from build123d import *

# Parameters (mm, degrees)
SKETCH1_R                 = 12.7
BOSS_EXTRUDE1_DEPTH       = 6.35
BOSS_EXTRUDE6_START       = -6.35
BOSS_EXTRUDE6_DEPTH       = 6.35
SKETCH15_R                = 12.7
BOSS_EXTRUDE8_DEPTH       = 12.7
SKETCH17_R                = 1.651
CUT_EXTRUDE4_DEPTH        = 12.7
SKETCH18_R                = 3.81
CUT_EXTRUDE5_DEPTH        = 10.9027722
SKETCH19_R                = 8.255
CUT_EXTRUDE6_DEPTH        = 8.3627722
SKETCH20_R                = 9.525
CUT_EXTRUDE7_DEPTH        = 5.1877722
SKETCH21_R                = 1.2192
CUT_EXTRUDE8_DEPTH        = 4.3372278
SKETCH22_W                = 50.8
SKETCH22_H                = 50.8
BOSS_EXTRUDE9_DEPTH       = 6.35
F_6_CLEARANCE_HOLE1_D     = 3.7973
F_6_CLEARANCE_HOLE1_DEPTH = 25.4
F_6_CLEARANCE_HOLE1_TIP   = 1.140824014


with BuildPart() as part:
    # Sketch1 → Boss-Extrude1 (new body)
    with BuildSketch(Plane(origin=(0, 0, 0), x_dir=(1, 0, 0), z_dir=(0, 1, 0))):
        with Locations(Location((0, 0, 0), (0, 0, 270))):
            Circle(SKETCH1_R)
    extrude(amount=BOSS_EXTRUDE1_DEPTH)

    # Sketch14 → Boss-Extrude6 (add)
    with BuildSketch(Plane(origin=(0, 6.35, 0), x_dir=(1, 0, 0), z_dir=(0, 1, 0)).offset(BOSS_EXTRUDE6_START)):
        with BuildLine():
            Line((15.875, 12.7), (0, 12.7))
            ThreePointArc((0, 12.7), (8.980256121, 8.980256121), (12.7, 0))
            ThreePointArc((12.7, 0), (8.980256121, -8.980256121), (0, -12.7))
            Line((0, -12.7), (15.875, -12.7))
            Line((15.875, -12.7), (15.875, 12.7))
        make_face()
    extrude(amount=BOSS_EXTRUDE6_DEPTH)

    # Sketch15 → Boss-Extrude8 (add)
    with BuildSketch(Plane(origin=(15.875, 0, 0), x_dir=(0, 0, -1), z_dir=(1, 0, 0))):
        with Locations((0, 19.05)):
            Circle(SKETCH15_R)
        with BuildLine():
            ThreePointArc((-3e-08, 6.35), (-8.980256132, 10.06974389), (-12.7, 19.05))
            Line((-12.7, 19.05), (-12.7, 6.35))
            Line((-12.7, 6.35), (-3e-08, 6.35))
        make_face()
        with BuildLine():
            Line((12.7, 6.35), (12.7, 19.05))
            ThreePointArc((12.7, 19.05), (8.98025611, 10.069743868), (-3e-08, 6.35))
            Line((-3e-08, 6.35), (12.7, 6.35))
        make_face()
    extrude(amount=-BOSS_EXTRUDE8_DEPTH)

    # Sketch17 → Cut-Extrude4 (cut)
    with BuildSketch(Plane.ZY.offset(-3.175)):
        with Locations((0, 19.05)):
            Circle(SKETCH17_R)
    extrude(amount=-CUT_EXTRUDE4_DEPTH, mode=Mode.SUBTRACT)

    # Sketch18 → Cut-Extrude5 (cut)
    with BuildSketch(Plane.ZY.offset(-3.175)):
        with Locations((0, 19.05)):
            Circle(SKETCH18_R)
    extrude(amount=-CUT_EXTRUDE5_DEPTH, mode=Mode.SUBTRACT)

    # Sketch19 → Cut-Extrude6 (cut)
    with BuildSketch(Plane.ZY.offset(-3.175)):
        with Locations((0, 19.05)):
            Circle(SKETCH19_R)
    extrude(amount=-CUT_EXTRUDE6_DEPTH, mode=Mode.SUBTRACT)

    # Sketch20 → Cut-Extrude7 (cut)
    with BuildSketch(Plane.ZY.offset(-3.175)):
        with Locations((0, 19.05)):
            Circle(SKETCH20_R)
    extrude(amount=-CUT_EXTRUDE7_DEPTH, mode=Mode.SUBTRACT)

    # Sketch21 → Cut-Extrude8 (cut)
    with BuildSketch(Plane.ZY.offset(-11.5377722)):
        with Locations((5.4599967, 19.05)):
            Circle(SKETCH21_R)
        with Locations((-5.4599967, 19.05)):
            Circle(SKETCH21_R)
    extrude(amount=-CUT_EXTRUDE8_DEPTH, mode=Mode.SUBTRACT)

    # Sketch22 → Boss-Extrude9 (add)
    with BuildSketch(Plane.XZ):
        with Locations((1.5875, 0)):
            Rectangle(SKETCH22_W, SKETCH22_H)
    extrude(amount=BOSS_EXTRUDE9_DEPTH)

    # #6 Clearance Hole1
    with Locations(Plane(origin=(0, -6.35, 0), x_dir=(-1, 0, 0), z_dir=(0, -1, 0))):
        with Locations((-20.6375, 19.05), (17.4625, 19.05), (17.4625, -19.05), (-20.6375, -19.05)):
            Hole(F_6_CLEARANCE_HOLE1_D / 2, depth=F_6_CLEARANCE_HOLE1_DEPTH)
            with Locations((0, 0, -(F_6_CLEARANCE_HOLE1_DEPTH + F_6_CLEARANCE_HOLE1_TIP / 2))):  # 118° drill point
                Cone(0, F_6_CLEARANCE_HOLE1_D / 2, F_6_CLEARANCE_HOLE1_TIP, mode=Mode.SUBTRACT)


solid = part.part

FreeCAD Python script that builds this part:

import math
import FreeCAD as App
import Part
import Sketcher

V = App.Vector
Q = App.Units.Quantity

doc = App.newDocument("Part")
body = doc.addObject("PartDesign::Body", "Body")

# Sketch on XZ plane
sketch1 = body.newObject("Sketcher::SketchObject", "Sketch")
sketch1.AttachmentSupport = (doc.getObject("XZ_Plane"), [""])
sketch1.MapMode = "FlatFace"
sketch1.addGeometry(Part.Circle(V(0, 0, 0), V(0, 0, 1), 13), False)
sketch1.addConstraint([
    Sketcher.Constraint("Coincident", 0, 3, -1, 1),
    Sketcher.Constraint("Diameter", 0, Q("1 in")),
])
pad1 = body.newObject("PartDesign::Pad", "Pad")
pad1.Profile = sketch1
pad1.Length = Q("0.25 in")
pad1.Reversed = True

# Sketch on XZ plane
sketch2 = body.newObject("Sketcher::SketchObject", "Sketch001")
sketch2.AttachmentSupport = (doc.getObject("XZ_Plane"), [""])
sketch2.MapMode = "FlatFace"
sketch2.addGeometry([
    Part.LineSegment(V(16, -13, 0), V(0, -13, 0)),  # 0
    Part.ArcOfCircle(Part.Circle(V(0, 0, 0), V(0, 0, 1), 13), math.radians(-90), math.radians(0)),  # 1
    Part.ArcOfCircle(Part.Circle(V(0, 0, 0), V(0, 0, 1), 13), math.radians(0), math.radians(90)),  # 2
    Part.LineSegment(V(0, 13, 0), V(16, 13, 0)),  # 3
    Part.LineSegment(V(16, 13, 0), V(16, -13, 0)),  # 4
], False)
sketch2.addConstraint([
    Sketcher.Constraint("Tangent", 0, 2, 1, 1),
    Sketcher.Constraint("Tangent", 1, 2, 2, 1),
    Sketcher.Constraint("Tangent", 2, 2, 3, 1),
    Sketcher.Constraint("Coincident", 3, 2, 4, 1),
    Sketcher.Constraint("Coincident", 4, 2, 0, 1),
    Sketcher.Constraint("Horizontal", 0),
    Sketcher.Constraint("Horizontal", 3),
    Sketcher.Constraint("Vertical", 4),
    Sketcher.Constraint("Coincident", 1, 3, -1, 1),
    Sketcher.Constraint("Equal", 1, 2),
    Sketcher.Constraint("PointOnObject", 1, 2, -1),
    Sketcher.Constraint("Radius", 1, Q("0.5 in")),
    Sketcher.Constraint("DistanceX", 0, 2, 0, 1, Q("0.625 in")),
])
pad2 = body.newObject("PartDesign::Pad", "Pad001")
pad2.Profile = sketch2
pad2.Length = Q("0.25 in")
pad2.Reversed = True

# Sketch on YZ plane
sketch3 = body.newObject("Sketcher::SketchObject", "Sketch002")
sketch3.AttachmentSupport = (doc.getObject("YZ_Plane"), [""])
sketch3.MapMode = "FlatFace"
sketch3.AttachmentOffset = App.Placement(V(0, 0, 0.625 * 25.4), App.Rotation())
sketch3.addGeometry([
    Part.LineSegment(V(19, 13, 0), V(6, 13, 0)),
    Part.LineSegment(V(6, 13, 0), V(6, -13, 0)),
    Part.LineSegment(V(6, -13, 0), V(19, -13, 0)),
    Part.ArcOfCircle(Part.Circle(V(19, 0, 0), V(0, 0, 1), 13), math.radians(-90), math.radians(90)),
], False)
sketch3.addConstraint([
    Sketcher.Constraint("Coincident", 0, 2, 1, 1),
    Sketcher.Constraint("Coincident", 1, 2, 2, 1),
    Sketcher.Constraint("Tangent", 2, 2, 3, 1),
    Sketcher.Constraint("Tangent", 3, 2, 0, 1),
    Sketcher.Constraint("Horizontal", 0),
    Sketcher.Constraint("Vertical", 1),
    Sketcher.Constraint("Horizontal", 2),
    Sketcher.Constraint("PointOnObject", 3, 3, -1),
    Sketcher.Constraint("Radius", 3, Q("0.5 in")),
    Sketcher.Constraint("DistanceX", 0, 2, 0, 1, Q("0.5 in")),
    Sketcher.Constraint("DistanceX", -1, 1, 3, 3, Q("0.75 in")),
])
pad3 = body.newObject("PartDesign::Pad", "Pad002")
pad3.Profile = sketch3
pad3.Length = Q("0.5 in")
pad3.Reversed = True

# Sketch on YZ plane
sketch4 = body.newObject("Sketcher::SketchObject", "Sketch003")
sketch4.AttachmentSupport = (doc.getObject("YZ_Plane"), [""])
sketch4.MapMode = "FlatFace"
sketch4.AttachmentOffset = App.Placement(V(0, 0, 0.125 * 25.4), App.Rotation())
sketch4.addGeometry(Part.Circle(V(19.1, 0, 0), V(0, 0, 1), 1.7), False)
sketch4.addConstraint([
    Sketcher.Constraint("PointOnObject", 0, 3, -1),
    Sketcher.Constraint("Diameter", 0, Q("0.13 in")),
    Sketcher.Constraint("DistanceX", -1, 1, 0, 3, Q("0.75 in")),
])
pocket1 = body.newObject("PartDesign::Pocket", "Pocket")
pocket1.Profile = sketch4
pocket1.Length = Q("0.5 in")
pocket1.Reversed = True

# Sketch on YZ plane
sketch5 = body.newObject("Sketcher::SketchObject", "Sketch004")
sketch5.AttachmentSupport = (doc.getObject("YZ_Plane"), [""])
sketch5.MapMode = "FlatFace"
sketch5.AttachmentOffset = App.Placement(V(0, 0, 0.125 * 25.4), App.Rotation())
sketch5.addGeometry(Part.Circle(V(19.1, 0, 0), V(0, 0, 1), 3.8), False)
sketch5.addConstraint([
    Sketcher.Constraint("PointOnObject", 0, 3, -1),
    Sketcher.Constraint("Diameter", 0, Q("0.3 in")),
    Sketcher.Constraint("DistanceX", -1, 1, 0, 3, Q("0.75 in")),
])
pocket2 = body.newObject("PartDesign::Pocket", "Pocket001")
pocket2.Profile = sketch5
pocket2.Length = 10.902772
pocket2.Reversed = True

# Sketch on YZ plane
sketch6 = body.newObject("Sketcher::SketchObject", "Sketch005")
sketch6.AttachmentSupport = (doc.getObject("YZ_Plane"), [""])
sketch6.MapMode = "FlatFace"
sketch6.AttachmentOffset = App.Placement(V(0, 0, 0.125 * 25.4), App.Rotation())
sketch6.addGeometry(Part.Circle(V(19, 0, 0), V(0, 0, 1), 8), False)
sketch6.addConstraint([
    Sketcher.Constraint("PointOnObject", 0, 3, -1),
    Sketcher.Constraint("Diameter", 0, Q("0.65 in")),
    Sketcher.Constraint("DistanceX", -1, 1, 0, 3, Q("0.75 in")),
])
pocket3 = body.newObject("PartDesign::Pocket", "Pocket002")
pocket3.Profile = sketch6
pocket3.Length = 8.362772
pocket3.Reversed = True

# Sketch on YZ plane
sketch7 = body.newObject("Sketcher::SketchObject", "Sketch006")
sketch7.AttachmentSupport = (doc.getObject("YZ_Plane"), [""])
sketch7.MapMode = "FlatFace"
sketch7.AttachmentOffset = App.Placement(V(0, 0, 0.125 * 25.4), App.Rotation())
sketch7.addGeometry(Part.Circle(V(19, 0, 0), V(0, 0, 1), 10), False)
sketch7.addConstraint([
    Sketcher.Constraint("PointOnObject", 0, 3, -1),
    Sketcher.Constraint("Diameter", 0, Q("0.75 in")),
    Sketcher.Constraint("DistanceX", -1, 1, 0, 3, Q("0.75 in")),
])
pocket4 = body.newObject("PartDesign::Pocket", "Pocket003")
pocket4.Profile = sketch7
pocket4.Length = 5.187772
pocket4.Reversed = True

# Sketch on YZ plane
sketch8 = body.newObject("Sketcher::SketchObject", "Sketch007")
sketch8.AttachmentSupport = (doc.getObject("YZ_Plane"), [""])
sketch8.MapMode = "FlatFace"
sketch8.AttachmentOffset = App.Placement(V(0, 0, 11.537772), App.Rotation())
sketch8.addGeometry([
    Part.Circle(V(19.1, 5.5, 0), V(0, 0, 1), 1.2),
    Part.Circle(V(19.1, -5.5, 0), V(0, 0, 1), 1.2),
], False)
sketch8.addConstraint([
    Sketcher.Constraint("Equal", 0, 1),
    Sketcher.Constraint("Symmetric", 0, 3, 1, 3, -1),
    Sketcher.Constraint("Diameter", 0, Q("0.096 in")),
    Sketcher.Constraint("DistanceX", -1, 1, 0, 3, Q("0.75 in")),
    Sketcher.Constraint("DistanceY", -1, 1, 0, 3, 5.459997),
])
pocket5 = body.newObject("PartDesign::Pocket", "Pocket004")
pocket5.Profile = sketch8
pocket5.Length = 4.337228
pocket5.Reversed = True

# Sketch on XZ plane
sketch9 = body.newObject("Sketcher::SketchObject", "Sketch008")
sketch9.AttachmentSupport = (doc.getObject("XZ_Plane"), [""])
sketch9.MapMode = "FlatFace"
sketch9.addGeometry([
    Part.LineSegment(V(-24, 25, 0), V(-24, -25, 0)),
    Part.LineSegment(V(-24, -25, 0), V(27, -25, 0)),
    Part.LineSegment(V(27, -25, 0), V(27, 25, 0)),
    Part.LineSegment(V(27, 25, 0), V(-24, 25, 0)),
], False)
sketch9.addConstraint([
    Sketcher.Constraint("Coincident", 0, 2, 1, 1),
    Sketcher.Constraint("Coincident", 1, 2, 2, 1),
    Sketcher.Constraint("Coincident", 2, 2, 3, 1),
    Sketcher.Constraint("Coincident", 3, 2, 0, 1),
    Sketcher.Constraint("Vertical", 0),
    Sketcher.Constraint("Horizontal", 1),
    Sketcher.Constraint("Vertical", 2),
    Sketcher.Constraint("Horizontal", 3),
    Sketcher.Constraint("Equal", 3, 0),
    Sketcher.Constraint("DistanceX", 1, 1, 1, 2, Q("2 in")),
    Sketcher.Constraint("DistanceY", 0, 2, -1, 1, Q("1 in")),
    Sketcher.Constraint("DistanceX", 0, 2, -1, 1, Q("0.9375 in")),
])
pad4 = body.newObject("PartDesign::Pad", "Pad003")
pad4.Profile = sketch9
pad4.Length = Q("0.25 in")

# Sketch on XZ plane
sketch10 = body.newObject("Sketcher::SketchObject", "Sketch009")
sketch10.AttachmentSupport = (doc.getObject("XZ_Plane"), [""])
sketch10.MapMode = "FlatFace"
sketch10.AttachmentOffset = App.Placement(V(0, 0, 0.25 * 25.4), App.Rotation())
sketch10.addGeometry([
    Part.Circle(V(20.6, -19.1, 0), V(0, 0, 1), 1.9),
    Part.Circle(V(-17.5, -19.1, 0), V(0, 0, 1), 1.9),
    Part.Circle(V(-17.5, 19.1, 0), V(0, 0, 1), 1.9),
    Part.Circle(V(20.6, 19.1, 0), V(0, 0, 1), 1.9),
], False)
sketch10.addConstraint([
    Sketcher.Constraint("Equal", 0, 1),
    Sketcher.Constraint("Equal", 1, 2),
    Sketcher.Constraint("Equal", 2, 3),
    Sketcher.Constraint("Symmetric", 1, 3, 2, 3, -1),
    Sketcher.Constraint("Symmetric", 0, 3, 3, 3, -1),
    Sketcher.Constraint("Horizontal", 0, 3, 1, 3),
    Sketcher.Constraint("Diameter", 0, Q("0.1495 in")),
    Sketcher.Constraint("DistanceX", 1, 3, 0, 3, Q("1.5 in")),
    Sketcher.Constraint("DistanceY", 1, 3, 2, 3, Q("1.5 in")),
    Sketcher.Constraint("DistanceX", -1, 1, 0, 3, Q("0.8125 in")),
])
doc.recompute()
hole = body.newObject("PartDesign::Hole", "Hole")
hole.Profile = sketch10
hole.ThreadType = "None"
hole.Diameter = Q("0.1495 in")
hole.DepthType = "Dimension"
hole.Depth = Q("1 in")
hole.DrillPoint = "Angled"
hole.DrillPointAngle = 118

doc.recompute()
